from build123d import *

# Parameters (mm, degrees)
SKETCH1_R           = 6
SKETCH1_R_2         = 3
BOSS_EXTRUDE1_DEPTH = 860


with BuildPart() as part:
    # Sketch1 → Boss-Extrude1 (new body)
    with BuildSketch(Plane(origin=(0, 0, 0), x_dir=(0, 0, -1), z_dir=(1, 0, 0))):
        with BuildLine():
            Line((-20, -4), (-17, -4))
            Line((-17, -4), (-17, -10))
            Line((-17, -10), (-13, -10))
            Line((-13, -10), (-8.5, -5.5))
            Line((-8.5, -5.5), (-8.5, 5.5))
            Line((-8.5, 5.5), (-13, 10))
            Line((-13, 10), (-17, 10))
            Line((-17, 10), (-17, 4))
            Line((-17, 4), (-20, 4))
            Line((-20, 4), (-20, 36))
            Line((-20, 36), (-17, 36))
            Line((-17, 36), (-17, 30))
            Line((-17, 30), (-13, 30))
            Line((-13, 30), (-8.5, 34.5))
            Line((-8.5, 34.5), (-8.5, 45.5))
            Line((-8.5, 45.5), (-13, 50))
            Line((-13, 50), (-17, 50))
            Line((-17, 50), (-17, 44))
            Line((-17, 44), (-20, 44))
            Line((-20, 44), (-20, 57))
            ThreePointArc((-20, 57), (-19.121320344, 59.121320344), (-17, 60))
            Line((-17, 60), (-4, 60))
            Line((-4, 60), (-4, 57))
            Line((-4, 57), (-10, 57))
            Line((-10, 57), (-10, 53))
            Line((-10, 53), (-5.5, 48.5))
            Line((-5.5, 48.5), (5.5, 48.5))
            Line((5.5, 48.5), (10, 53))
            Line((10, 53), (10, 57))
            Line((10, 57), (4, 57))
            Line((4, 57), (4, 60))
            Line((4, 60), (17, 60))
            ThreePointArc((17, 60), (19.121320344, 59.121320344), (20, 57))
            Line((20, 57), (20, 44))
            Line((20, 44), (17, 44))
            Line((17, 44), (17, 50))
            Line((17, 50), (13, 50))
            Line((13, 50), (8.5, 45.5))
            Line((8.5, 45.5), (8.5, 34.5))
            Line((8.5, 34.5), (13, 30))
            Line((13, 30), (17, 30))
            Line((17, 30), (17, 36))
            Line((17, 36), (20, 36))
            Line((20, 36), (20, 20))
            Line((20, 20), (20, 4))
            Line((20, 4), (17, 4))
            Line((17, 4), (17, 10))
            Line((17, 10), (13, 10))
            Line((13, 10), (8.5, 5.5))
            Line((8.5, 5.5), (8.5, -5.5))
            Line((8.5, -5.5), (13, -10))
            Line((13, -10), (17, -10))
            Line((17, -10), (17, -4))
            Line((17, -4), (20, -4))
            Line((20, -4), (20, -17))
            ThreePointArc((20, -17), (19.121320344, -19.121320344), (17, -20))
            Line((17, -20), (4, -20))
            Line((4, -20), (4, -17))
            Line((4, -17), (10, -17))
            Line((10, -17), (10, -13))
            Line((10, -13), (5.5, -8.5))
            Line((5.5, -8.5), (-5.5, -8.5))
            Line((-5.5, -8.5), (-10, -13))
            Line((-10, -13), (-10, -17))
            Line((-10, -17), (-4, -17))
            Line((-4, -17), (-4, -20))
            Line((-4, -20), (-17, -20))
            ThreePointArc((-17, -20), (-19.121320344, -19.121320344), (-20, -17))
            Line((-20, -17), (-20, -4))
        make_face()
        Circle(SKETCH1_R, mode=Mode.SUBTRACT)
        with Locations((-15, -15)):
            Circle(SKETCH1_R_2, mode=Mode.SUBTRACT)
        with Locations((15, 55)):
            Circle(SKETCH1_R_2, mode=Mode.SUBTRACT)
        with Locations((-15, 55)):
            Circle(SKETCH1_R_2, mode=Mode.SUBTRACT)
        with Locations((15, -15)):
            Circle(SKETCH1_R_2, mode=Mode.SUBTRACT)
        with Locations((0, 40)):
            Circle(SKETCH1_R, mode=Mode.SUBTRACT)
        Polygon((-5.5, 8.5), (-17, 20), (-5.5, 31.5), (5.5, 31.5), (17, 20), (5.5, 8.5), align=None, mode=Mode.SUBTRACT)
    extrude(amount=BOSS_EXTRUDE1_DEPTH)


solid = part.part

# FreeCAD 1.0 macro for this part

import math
import FreeCAD as App
import Part
import Sketcher
from FreeCAD import Vector
Q = App.Units.Quantity


def add_polygon(sketch, points):
    """Adds a closed chain of lines whose ends are joined by coincident constraints."""
    first, n = sketch.GeometryCount, len(points)
    for a, b in zip(points, points[1:] + points[:1]):
        sketch.addGeometry(Part.LineSegment(App.Vector(*a, 0), App.Vector(*b, 0)), False)
    for i in range(n):
        sketch.addConstraint(Sketcher.Constraint("Coincident", first + i, 2, first + (i + 1) % n, 1))

doc = App.newDocument("Part")
params = doc.addObject("Spreadsheet::Sheet", "Params")
for row, (alias, value) in enumerate([
    ("sketch1_diameter", "6 mm"),
    ("sketch1_diameter2", "12 mm"),
    ("sketch1_width", "13 mm"),
    ("sketch1_width2", "4 mm"),
    ("sketch1_width3", "11 mm"),
    ("pad1_length", "860 mm"),
], start=1):
    params.set(f"A{row}", alias)
    params.set(f"B{row}", "=" + value)
    params.setAlias(f"B{row}", alias)

body = doc.addObject("PartDesign::Body", "Body")

sketch1 = body.newObject("Sketcher::SketchObject", "Sketch")
sketch1.AttachmentSupport = (doc.getObject("YZ_Plane"), [""])
sketch1.MapMode = "FlatFace"
sketch1.addGeometry(Part.LineSegment(Vector(-4, 17, 0), Vector(-4, 20, 0)), False)
sketch1.addGeometry(Part.LineSegment(Vector(-4, 20, 0), Vector(-17, 20, 0)), False)
sketch1.addGeometry(Part.ArcOfCircle(Part.Circle(Vector(-17, 17, 0), Vector(0, 0, 1), 3), math.radians(90), math.radians(180)), False)
sketch1.addGeometry(Part.LineSegment(Vector(-20, 17, 0), Vector(-20, 4, 0)), False)
sketch1.addGeometry(Part.LineSegment(Vector(-20, 4, 0), Vector(-17, 4, 0)), False)
sketch1.addGeometry(Part.LineSegment(Vector(-17, 4, 0), Vector(-17, 10, 0)), False)
sketch1.addGeometry(Part.LineSegment(Vector(-17, 10, 0), Vector(-13, 10, 0)), False)
sketch1.addGeometry(Part.LineSegment(Vector(-13, 10, 0), Vector(-8.5, 5.5, 0)), False)
sketch1.addGeometry(Part.LineSegment(Vector(-8.5, 5.5, 0), Vector(-8.5, -5.5, 0)), False)
sketch1.addGeometry(Part.LineSegment(Vector(-8.5, -5.5, 0), Vector(-13, -10, 0)), False)
sketch1.addGeometry(Part.LineSegment(Vector(-13, -10, 0), Vector(-17, -10, 0)), False)
sketch1.addGeometry(Part.LineSegment(Vector(-17, -10, 0), Vector(-17, -4, 0)), False)
sketch1.addGeometry(Part.LineSegment(Vector(-17, -4, 0), Vector(-20, -4, 0)), False)
sketch1.addGeometry(Part.LineSegment(Vector(-20, -4, 0), Vector(-20, -17, 0)), False)
sketch1.addGeometry(Part.ArcOfCircle(Part.Circle(Vector(-17, -17, 0), Vector(0, 0, 1), 3), math.radians(180), math.radians(270)), False)
sketch1.addGeometry(Part.LineSegment(Vector(-17, -20, 0), Vector(-4, -20, 0)), False)
sketch1.addGeometry(Part.LineSegment(Vector(-4, -20, 0), Vector(-4, -17, 0)), False)
sketch1.addGeometry(Part.LineSegment(Vector(-4, -17, 0), Vector(-10, -17, 0)), False)
sketch1.addGeometry(Part.LineSegment(Vector(-10, -17, 0), Vector(-10, -13, 0)), False)
sketch1.addGeometry(Part.LineSegment(Vector(-10, -13, 0), Vector(-5.5, -8.5, 0)), False)
sketch1.addGeometry(Part.LineSegment(Vector(-5.5, -8.5, 0), Vector(5.5, -8.5, 0)), False)
sketch1.addGeometry(Part.LineSegment(Vector(5.5, -8.5, 0), Vector(10, -13, 0)), False)
sketch1.addGeometry(Part.LineSegment(Vector(10, -13, 0), Vector(10, -17, 0)), False)
sketch1.addGeometry(Part.LineSegment(Vector(10, -17, 0), Vector(4, -17, 0)), False)
sketch1.addGeometry(Part.LineSegment(Vector(4, -17, 0), Vector(4, -20, 0)), False)
sketch1.addGeometry(Part.LineSegment(Vector(4, -20, 0), Vector(36, -20, 0)), False)
sketch1.addGeometry(Part.LineSegment(Vector(36, -20, 0), Vector(36, -17, 0)), False)
sketch1.addGeometry(Part.LineSegment(Vector(36, -17, 0), Vector(30, -17, 0)), False)
sketch1.addGeometry(Part.LineSegment(Vector(30, -17, 0), Vector(30, -13, 0)), False)
sketch1.addGeometry(Part.LineSegment(Vector(30, -13, 0), Vector(34.5, -8.5, 0)), False)
sketch1.addGeometry(Part.LineSegment(Vector(34.5, -8.5, 0), Vector(45.5, -8.5, 0)), False)
sketch1.addGeometry(Part.LineSegment(Vector(45.5, -8.5, 0), Vector(50, -13, 0)), False)
sketch1.addGeometry(Part.LineSegment(Vector(50, -13, 0), Vector(50, -17, 0)), False)
sketch1.addGeometry(Part.LineSegment(Vector(50, -17, 0), Vector(44, -17, 0)), False)
sketch1.addGeometry(Part.LineSegment(Vector(44, -17, 0), Vector(44, -20, 0)), False)
sketch1.addGeometry(Part.LineSegment(Vector(44, -20, 0), Vector(57, -20, 0)), False)
sketch1.addGeometry(Part.ArcOfCircle(Part.Circle(Vector(57, -17, 0), Vector(0, 0, 1), 3), math.radians(-90), math.radians(0)), False)
sketch1.addGeometry(Part.LineSegment(Vector(60, -17, 0), Vector(60, -4, 0)), False)
sketch1.addGeometry(Part.LineSegment(Vector(60, -4, 0), Vector(57, -4, 0)), False)
sketch1.addGeometry(Part.LineSegment(Vector(57, -4, 0), Vector(57, -10, 0)), False)
sketch1.addGeometry(Part.LineSegment(Vector(57, -10, 0), Vector(53, -10, 0)), False)
sketch1.addGeometry(Part.LineSegment(Vector(53, -10, 0), Vector(48.5, -5.5, 0)), False)
sketch1.addGeometry(Part.LineSegment(Vector(48.5, -5.5, 0), Vector(48.5, 5.5, 0)), False)
sketch1.addGeometry(Part.LineSegment(Vector(48.5, 5.5, 0), Vector(53, 10, 0)), False)
sketch1.addGeometry(Part.LineSegment(Vector(53, 10, 0), Vector(57, 10, 0)), False)
sketch1.addGeometry(Part.LineSegment(Vector(57, 10, 0), Vector(57, 4, 0)), False)
sketch1.addGeometry(Part.LineSegment(Vector(57, 4, 0), Vector(60, 4, 0)), False)
sketch1.addGeometry(Part.LineSegment(Vector(60, 4, 0), Vector(60, 17, 0)), False)
sketch1.addGeometry(Part.ArcOfCircle(Part.Circle(Vector(57, 17, 0), Vector(0, 0, 1), 3), math.radians(0), math.radians(90)), False)
sketch1.addGeometry(Part.LineSegment(Vector(57, 20, 0), Vector(44, 20, 0)), False)
sketch1.addGeometry(Part.LineSegment(Vector(44, 20, 0), Vector(44, 17, 0)), False)
sketch1.addGeometry(Part.LineSegment(Vector(44, 17, 0), Vector(50, 17, 0)), False)
sketch1.addGeometry(Part.LineSegment(Vector(50, 17, 0), Vector(50, 13, 0)), False)
sketch1.addGeometry(Part.LineSegment(Vector(50, 13, 0), Vector(45.5, 8.5, 0)), False)
sketch1.addGeometry(Part.LineSegment(Vector(45.5, 8.5, 0), Vector(34.5, 8.5, 0)), False)
sketch1.addGeometry(Part.LineSegment(Vector(34.5, 8.5, 0), Vector(30, 13, 0)), False)
sketch1.addGeometry(Part.LineSegment(Vector(30, 13, 0), Vector(30, 17, 0)), False)
sketch1.addGeometry(Part.LineSegment(Vector(30, 17, 0), Vector(36, 17, 0)), False)
sketch1.addGeometry(Part.LineSegment(Vector(36, 17, 0), Vector(36, 20, 0)), False)
sketch1.addGeometry(Part.LineSegment(Vector(36, 20, 0), Vector(4, 20, 0)), False)
sketch1.addGeometry(Part.LineSegment(Vector(4, 20, 0), Vector(4, 17, 0)), False)
sketch1.addGeometry(Part.LineSegment(Vector(4, 17, 0), Vector(10, 17, 0)), False)
sketch1.addGeometry(Part.LineSegment(Vector(10, 17, 0), Vector(10, 13, 0)), False)
sketch1.addGeometry(Part.LineSegment(Vector(10, 13, 0), Vector(5.5, 8.5, 0)), False)
sketch1.addGeometry(Part.LineSegment(Vector(5.5, 8.5, 0), Vector(-5.5, 8.5, 0)), False)
sketch1.addGeometry(Part.LineSegment(Vector(-5.5, 8.5, 0), Vector(-10, 13, 0)), False)
sketch1.addGeometry(Part.LineSegment(Vector(-10, 13, 0), Vector(-10, 17, 0)), False)
sketch1.addGeometry(Part.LineSegment(Vector(-10, 17, 0), Vector(-4, 17, 0)), False)
sketch1.addGeometry(Part.Circle(Vector(-15, -15, 0), Vector(0, 0, 1), 3), False)
sketch1.addGeometry(Part.Circle(Vector(0, 0, 0), Vector(0, 0, 1), 6), False)
sketch1.addGeometry(Part.Circle(Vector(-15, 15, 0), Vector(0, 0, 1), 3), False)
sketch1.addGeometry(Part.Circle(Vector(55, -15, 0), Vector(0, 0, 1), 3), False)
add_polygon(sketch1, [(8.5, 5.5), (20, 17), (31.5, 5.5), (31.5, -5.5), (20, -17), (8.5, -5.5)])
sketch1.addGeometry(Part.Circle(Vector(40, 0, 0), Vector(0, 0, 1), 6), False)
sketch1.addGeometry(Part.Circle(Vector(55, 15, 0), Vector(0, 0, 1), 3), False)
sketch1.addConstraint(Sketcher.Constraint("Coincident", 0, 2, 1, 1))
sketch1.addConstraint(Sketcher.Constraint("Tangent", 1, 2, 2, 1))
sketch1.addConstraint(Sketcher.Constraint("Tangent", 2, 2, 3, 1))
sketch1.addConstraint(Sketcher.Constraint("Coincident", 3, 2, 4, 1))
sketch1.addConstraint(Sketcher.Constraint("Coincident", 4, 2, 5, 1))
sketch1.addConstraint(Sketcher.Constraint("Coincident", 5, 2, 6, 1))
sketch1.addConstraint(Sketcher.Constraint("Coincident", 6, 2, 7, 1))
sketch1.addConstraint(Sketcher.Constraint("Coincident", 7, 2, 8, 1))
sketch1.addConstraint(Sketcher.Constraint("Coincident", 8, 2, 9, 1))
sketch1.addConstraint(Sketcher.Constraint("Coincident", 9, 2, 10, 1))
sketch1.addConstraint(Sketcher.Constraint("Coincident", 10, 2, 11, 1))
sketch1.addConstraint(Sketcher.Constraint("Coincident", 11, 2, 12, 1))
sketch1.addConstraint(Sketcher.Constraint("Coincident", 12, 2, 13, 1))
sketch1.addConstraint(Sketcher.Constraint("Tangent", 13, 2, 14, 1))
sketch1.addConstraint(Sketcher.Constraint("Tangent", 14, 2, 15, 1))
sketch1.addConstraint(Sketcher.Constraint("Coincident", 15, 2, 16, 1))
sketch1.addConstraint(Sketcher.Constraint("Coincident", 16, 2, 17, 1))
sketch1.addConstraint(Sketcher.Constraint("Coincident", 17, 2, 18, 1))
sketch1.addConstraint(Sketcher.Constraint("Coincident", 18, 2, 19, 1))
sketch1.addConstraint(Sketcher.Constraint("Coincident", 19, 2, 20, 1))
sketch1.addConstraint(Sketcher.Constraint("Coincident", 20, 2, 21, 1))
sketch1.addConstraint(Sketcher.Constraint("Coincident", 21, 2, 22, 1))
sketch1.addConstraint(Sketcher.Constraint("Coincident", 22, 2, 23, 1))
sketch1.addConstraint(Sketcher.Constraint("Coincident", 23, 2, 24, 1))
sketch1.addConstraint(Sketcher.Constraint("Coincident", 24, 2, 25, 1))
sketch1.addConstraint(Sketcher.Constraint("Coincident", 25, 2, 26, 1))
sketch1.addConstraint(Sketcher.Constraint("Coincident", 26, 2, 27, 1))
sketch1.addConstraint(Sketcher.Constraint("Coincident", 27, 2, 28, 1))
sketch1.addConstraint(Sketcher.Constraint("Coincident", 28, 2, 29, 1))
sketch1.addConstraint(Sketcher.Constraint("Coincident", 29, 2, 30, 1))
sketch1.addConstraint(Sketcher.Constraint("Coincident", 30, 2, 31, 1))
sketch1.addConstraint(Sketcher.Constraint("Coincident", 31, 2, 32, 1))
sketch1.addConstraint(Sketcher.Constraint("Coincident", 32, 2, 33, 1))
sketch1.addConstraint(Sketcher.Constraint("Coincident", 33, 2, 34, 1))
sketch1.addConstraint(Sketcher.Constraint("Coincident", 34, 2, 35, 1))
sketch1.addConstraint(Sketcher.Constraint("Tangent", 35, 2, 36, 1))
sketch1.addConstraint(Sketcher.Constraint("Tangent", 36, 2, 37, 1))
sketch1.addConstraint(Sketcher.Constraint("Coincident", 37, 2, 38, 1))
sketch1.addConstraint(Sketcher.Constraint("Coincident", 38, 2, 39, 1))
sketch1.addConstraint(Sketcher.Constraint("Coincident", 39, 2, 40, 1))
sketch1.addConstraint(Sketcher.Constraint("Coincident", 40, 2, 41, 1))
sketch1.addConstraint(Sketcher.Constraint("Coincident", 41, 2, 42, 1))
sketch1.addConstraint(Sketcher.Constraint("Coincident", 42, 2, 43, 1))
sketch1.addConstraint(Sketcher.Constraint("Coincident", 43, 2, 44, 1))
sketch1.addConstraint(Sketcher.Constraint("Coincident", 44, 2, 45, 1))
sketch1.addConstraint(Sketcher.Constraint("Coincident", 45, 2, 46, 1))
sketch1.addConstraint(Sketcher.Constraint("Coincident", 46, 2, 47, 1))
sketch1.addConstraint(Sketcher.Constraint("Tangent", 47, 2, 48, 1))
sketch1.addConstraint(Sketcher.Constraint("Tangent", 48, 2, 49, 1))
sketch1.addConstraint(Sketcher.Constraint("Coincident", 49, 2, 50, 1))
sketch1.addConstraint(Sketcher.Constraint("Coincident", 50, 2, 51, 1))
sketch1.addConstraint(Sketcher.Constraint("Coincident", 51, 2, 52, 1))
sketch1.addConstraint(Sketcher.Constraint("Coincident", 52, 2, 53, 1))
sketch1.addConstraint(Sketcher.Constraint("Coincident", 53, 2, 54, 1))
sketch1.addConstraint(Sketcher.Constraint("Coincident", 54, 2, 55, 1))
sketch1.addConstraint(Sketcher.Constraint("Coincident", 55, 2, 56, 1))
sketch1.addConstraint(Sketcher.Constraint("Coincident", 56, 2, 57, 1))
sketch1.addConstraint(Sketcher.Constraint("Coincident", 57, 2, 58, 1))
sketch1.addConstraint(Sketcher.Constraint("Coincident", 58, 2, 59, 1))
sketch1.addConstraint(Sketcher.Constraint("Coincident", 59, 2, 60, 1))
sketch1.addConstraint(Sketcher.Constraint("Coincident", 60, 2, 61, 1))
sketch1.addConstraint(Sketcher.Constraint("Coincident", 61, 2, 62, 1))
sketch1.addConstraint(Sketcher.Constraint("Coincident", 62, 2, 63, 1))
sketch1.addConstraint(Sketcher.Constraint("Coincident", 63, 2, 64, 1))
sketch1.addConstraint(Sketcher.Constraint("Coincident", 64, 2, 65, 1))
sketch1.addConstraint(Sketcher.Constraint("Coincident", 65, 2, 66, 1))
sketch1.addConstraint(Sketcher.Constraint("Coincident", 66, 2, 67, 1))
sketch1.addConstraint(Sketcher.Constraint("Coincident", 67, 2, 0, 1))
sketch1.addConstraint(Sketcher.Constraint("Vertical", 0))
sketch1.addConstraint(Sketcher.Constraint("Horizontal", 1))
sketch1.addConstraint(Sketcher.Constraint("Vertical", 3))
sketch1.addConstraint(Sketcher.Constraint("Horizontal", 4))
sketch1.addConstraint(Sketcher.Constraint("Vertical", 5))
sketch1.addConstraint(Sketcher.Constraint("Horizontal", 6))
sketch1.addConstraint(Sketcher.Constraint("Vertical", 8))
sketch1.addConstraint(Sketcher.Constraint("Horizontal", 10))
sketch1.addConstraint(Sketcher.Constraint("Vertical", 11))
sketch1.addConstraint(Sketcher.Constraint("Horizontal", 12))
sketch1.addConstraint(Sketcher.Constraint("Vertical", 13))
sketch1.addConstraint(Sketcher.Constraint("Horizontal", 15))
sketch1.addConstraint(Sketcher.Constraint("Vertical", 16))
sketch1.addConstraint(Sketcher.Constraint("Horizontal", 17))
sketch1.addConstraint(Sketcher.Constraint("Vertical", 18))
sketch1.addConstraint(Sketcher.Constraint("Horizontal", 20))
sketch1.addConstraint(Sketcher.Constraint("Vertical", 22))
sketch1.addConstraint(Sketcher.Constraint("Horizontal", 23))
sketch1.addConstraint(Sketcher.Constraint("Vertical", 24))
sketch1.addConstraint(Sketcher.Constraint("Horizontal", 25))
sketch1.addConstraint(Sketcher.Constraint("Vertical", 26))
sketch1.addConstraint(Sketcher.Constraint("Horizontal", 27))
sketch1.addConstraint(Sketcher.Constraint("Vertical", 28))
sketch1.addConstraint(Sketcher.Constraint("Horizontal", 30))
sketch1.addConstraint(Sketcher.Constraint("Vertical", 32))
sketch1.addConstraint(Sketcher.Constraint("Horizontal", 33))
sketch1.addConstraint(Sketcher.Constraint("Vertical", 34))
sketch1.addConstraint(Sketcher.Constraint("Horizontal", 35))
sketch1.addConstraint(Sketcher.Constraint("Vertical", 37))
sketch1.addConstraint(Sketcher.Constraint("Horizontal", 38))
sketch1.addConstraint(Sketcher.Constraint("Vertical", 39))
sketch1.addConstraint(Sketcher.Constraint("Horizontal", 40))
sketch1.addConstraint(Sketcher.Constraint("Vertical", 42))
sketch1.addConstraint(Sketcher.Constraint("Horizontal", 44))
sketch1.addConstraint(Sketcher.Constraint("Vertical", 45))
sketch1.addConstraint(Sketcher.Constraint("Horizontal", 46))
sketch1.addConstraint(Sketcher.Constraint("Vertical", 47))
sketch1.addConstraint(Sketcher.Constraint("Horizontal", 49))
sketch1.addConstraint(Sketcher.Constraint("Vertical", 50))
sketch1.addConstraint(Sketcher.Constraint("Horizontal", 51))
sketch1.addConstraint(Sketcher.Constraint("Vertical", 52))
sketch1.addConstraint(Sketcher.Constraint("Horizontal", 54))
sketch1.addConstraint(Sketcher.Constraint("Vertical", 56))
sketch1.addConstraint(Sketcher.Constraint("Horizontal", 57))
sketch1.addConstraint(Sketcher.Constraint("Vertical", 58))
sketch1.addConstraint(Sketcher.Constraint("Horizontal", 59))
sketch1.addConstraint(Sketcher.Constraint("Vertical", 60))
sketch1.addConstraint(Sketcher.Constraint("Horizontal", 61))
sketch1.addConstraint(Sketcher.Constraint("Vertical", 62))
sketch1.addConstraint(Sketcher.Constraint("Horizontal", 64))
sketch1.addConstraint(Sketcher.Constraint("Vertical", 66))
sketch1.addConstraint(Sketcher.Constraint("Horizontal", 67))
sketch1.addConstraint(Sketcher.Constraint("Vertical", 74))
sketch1.addConstraint(Sketcher.Constraint("Vertical", 77))
sketch1.addConstraint(Sketcher.Constraint("Coincident", 69, 3, -1, 1))
sketch1.addConstraint(Sketcher.Constraint("Equal", 2, 14))
sketch1.addConstraint(Sketcher.Constraint("Equal", 14, 36))
sketch1.addConstraint(Sketcher.Constraint("Equal", 36, 48))
sketch1.addConstraint(Sketcher.Constraint("Equal", 48, 68))
sketch1.addConstraint(Sketcher.Constraint("Equal", 68, 70))
sketch1.addConstraint(Sketcher.Constraint("Equal", 70, 71))
sketch1.addConstraint(Sketcher.Constraint("Equal", 69, 78))
sketch1.addConstraint(Sketcher.Constraint("Equal", 71, 79))
sketch1.addConstraint(Sketcher.Constraint("Symmetric", 0, 2, 24, 2, -1, 1))
sketch1.addConstraint(Sketcher.Constraint("Symmetric", 15, 2, 59, 2, -1, 1))
sketch1.addConstraint(Sketcher.Constraint("Symmetric", 17, 2, 61, 2, -1, 1))
sketch1.addConstraint(Sketcher.Constraint("Symmetric", 19, 2, 63, 2, -1, 1))
sketch1.addConstraint(Sketcher.Constraint("Symmetric", 21, 2, 65, 2, -1, 1))
sketch1.addConstraint(Sketcher.Constraint("Symmetric", 13, 2, 72, 2, -1, 1))
sketch1.addConstraint(Sketcher.Constraint("Symmetric", 2, 2, 75, 2, -1, 1))
sketch1.addConstraint(Sketcher.Constraint("Symmetric", 7, 2, 76, 2, -1, 1))
sketch1.addConstraint(Sketcher.Constraint("Symmetric", 18, 2, 21, 2, -2))
sketch1.addConstraint(Sketcher.Constraint("Symmetric", 16, 2, 23, 2, -2))
sketch1.addConstraint(Sketcher.Constraint("Symmetric", 2, 2, 72, 2, -2))
sketch1.addConstraint(Sketcher.Constraint("Symmetric", 36, 3, 48, 3, -1))
sketch1.addConstraint(Sketcher.Constraint("Symmetric", 68, 3, 70, 3, -1))
sketch1.addConstraint(Sketcher.Constraint("Symmetric", 71, 3, 79, 3, -1))
sketch1.addConstraint(Sketcher.Constraint("Symmetric", 6, 2, 9, 2, -1))
sketch1.addConstraint(Sketcher.Constraint("Symmetric", 4, 2, 11, 2, -1))
sketch1.addConstraint(Sketcher.Constraint("Symmetric", 40, 2, 43, 2, -1))
sketch1.addConstraint(Sketcher.Constraint("Symmetric", 38, 2, 45, 2, -1))
sketch1.addConstraint(Sketcher.Constraint("Symmetric", 33, 2, 50, 2, -1))
sketch1.addConstraint(Sketcher.Constraint("Symmetric", 31, 2, 52, 2, -1))
sketch1.addConstraint(Sketcher.Constraint("Symmetric", 30, 2, 53, 2, -1))
sketch1.addConstraint(Sketcher.Constraint("Symmetric", 28, 2, 55, 2, -1))
sketch1.addConstraint(Sketcher.Constraint("Symmetric", 26, 2, 57, 2, -1))
sketch1.addConstraint(Sketcher.Constraint("PointOnObject", 78, 3, -1))
sketch1.addConstraint(Sketcher.Constraint("Perpendicular", 7, 9))
sketch1.addConstraint(Sketcher.Constraint("Parallel", 9, 19))
sketch1.addConstraint(Sketcher.Constraint("Perpendicular", 19, 21))
sketch1.addConstraint(Sketcher.Constraint("Perpendicular", 21, 29))
sketch1.addConstraint(Sketcher.Constraint("Perpendicular", 29, 31))
sketch1.addConstraint(Sketcher.Constraint("Parallel", 31, 41))
sketch1.addConstraint(Sketcher.Constraint("Perpendicular", 41, 43))
sketch1.addConstraint(Sketcher.Constraint("Parallel", 43, 53))
sketch1.addConstraint(Sketcher.Constraint("Perpendicular", 53, 55))
sketch1.addConstraint(Sketcher.Constraint("Perpendicular", 55, 63))
sketch1.addConstraint(Sketcher.Constraint("Perpendicular", 63, 65))
sketch1.addConstraint(Sketcher.Constraint("Perpendicular", 65, 72))
sketch1.addConstraint(Sketcher.Constraint("Perpendicular", 72, 73))
sketch1.addConstraint(Sketcher.Constraint("Perpendicular", 73, 75))
sketch1.addConstraint(Sketcher.Constraint("Perpendicular", 75, 76))
sketch1.addConstraint(Sketcher.Constraint("Horizontal", 14, 3, 36, 3))
sketch1.addConstraint(Sketcher.Constraint("Horizontal", 68, 3, 71, 3))
sketch1.addConstraint(Sketcher.Constraint("Horizontal", 13, 2, 16, 2))
sketch1.addConstraint(Sketcher.Constraint("Horizontal", 23, 2, 26, 2))
sketch1.addConstraint(Sketcher.Constraint("Horizontal", 21, 2, 28, 2))
sketch1.addConstraint(Sketcher.Constraint("Horizontal", 20, 2, 29, 2))
sketch1.addConstraint(Sketcher.Constraint("Horizontal", 28, 2, 31, 2))
sketch1.addConstraint(Sketcher.Constraint("Horizontal", 27, 2, 32, 2))
sketch1.addConstraint(Sketcher.Constraint("Horizontal", 12, 2, 37, 2))
sketch1.addConstraint(Sketcher.Constraint("Horizontal", 10, 2, 39, 2))
sketch1.addConstraint(Sketcher.Constraint("Horizontal", 8, 2, 41, 2))
sketch1.addConstraint(Sketcher.Constraint("Horizontal", 61, 2, 66, 2))
sketch1.addConstraint(Sketcher.Constraint("Horizontal", 42, 2, 73, 2))
sketch1.addConstraint(Sketcher.Constraint("Vertical", 1, 2, 4, 2))
sketch1.addConstraint(Sketcher.Constraint("Vertical", 35, 2, 38, 2))
sketch1.addConstraint(Sketcher.Constraint("Equal", 23, 27))
sketch1.addConstraint(Sketcher.Constraint("Equal", 20, 30))
sketch1.addConstraint(Sketcher.Constraint("Equal", 27, 33))
sketch1.addConstraint(Sketcher.Constraint("Equal", 15, 35))
sketch1.addConstraint(Sketcher.Constraint("Equal", 10, 40))
sketch1.addConstraint(Sketcher.Constraint("Equal", 49, 3))
sketch1.addConstraint(Sketcher.Constraint("Equal", 67, 5))
sketch1.addConstraint(Sketcher.Constraint("Equal", 64, 8))
sketch1.addConstraint(Sketcher.Constraint("Equal", 44, 18))
sketch1.addConstraint(Sketcher.Constraint("Equal", 9, 19))
sketch1.addConstraint(Sketcher.Constraint("Diameter", 68, Q("6 mm")))
sketch1.addConstraint(Sketcher.Constraint("Diameter", 69, Q("12 mm")))
sketch1.addConstraint(Sketcher.Constraint("DistanceX", 1, 2, 1, 1, Q("13 mm")))
sketch1.addConstraint(Sketcher.Constraint("DistanceX", 6, 1, 6, 2, Q("4 mm")))
sketch1.addConstraint(Sketcher.Constraint("DistanceX", 20, 1, 20, 2, Q("11 mm")))
sketch1.addConstraint(Sketcher.Constraint("DistanceX", 25, 1, 25, 2, Q("32 mm")))
sketch1.addConstraint(Sketcher.Constraint("DistanceX", 2, 3, -1, 1, Q("17 mm")))
sketch1.addConstraint(Sketcher.Constraint("DistanceX", 68, 3, -1, 1, Q("15 mm")))
sketch1.addConstraint(Sketcher.Constraint("DistanceY", 68, 3, -1, 1, Q("15 mm")))
sketch1.addConstraint(Sketcher.Constraint("DistanceX", -1, 1, 71, 3, Q("55 mm")))
sketch1.addConstraint(Sketcher.Constraint("DistanceX", -1, 1, 78, 3, Q("40 mm")))
sketch1.setExpression("Constraints[201]", "Params.sketch1_diameter")
sketch1.setExpression("Constraints[202]", "Params.sketch1_diameter2")
sketch1.setExpression("Constraints[203]", "Params.sketch1_width")
sketch1.setExpression("Constraints[204]", "Params.sketch1_width2")
sketch1.setExpression("Constraints[205]", "Params.sketch1_width3")
pad1 = body.newObject("PartDesign::Pad", "Pad")
pad1.Profile = sketch1
pad1.setExpression("Length", "Params.pad1_length")

doc.recompute()
